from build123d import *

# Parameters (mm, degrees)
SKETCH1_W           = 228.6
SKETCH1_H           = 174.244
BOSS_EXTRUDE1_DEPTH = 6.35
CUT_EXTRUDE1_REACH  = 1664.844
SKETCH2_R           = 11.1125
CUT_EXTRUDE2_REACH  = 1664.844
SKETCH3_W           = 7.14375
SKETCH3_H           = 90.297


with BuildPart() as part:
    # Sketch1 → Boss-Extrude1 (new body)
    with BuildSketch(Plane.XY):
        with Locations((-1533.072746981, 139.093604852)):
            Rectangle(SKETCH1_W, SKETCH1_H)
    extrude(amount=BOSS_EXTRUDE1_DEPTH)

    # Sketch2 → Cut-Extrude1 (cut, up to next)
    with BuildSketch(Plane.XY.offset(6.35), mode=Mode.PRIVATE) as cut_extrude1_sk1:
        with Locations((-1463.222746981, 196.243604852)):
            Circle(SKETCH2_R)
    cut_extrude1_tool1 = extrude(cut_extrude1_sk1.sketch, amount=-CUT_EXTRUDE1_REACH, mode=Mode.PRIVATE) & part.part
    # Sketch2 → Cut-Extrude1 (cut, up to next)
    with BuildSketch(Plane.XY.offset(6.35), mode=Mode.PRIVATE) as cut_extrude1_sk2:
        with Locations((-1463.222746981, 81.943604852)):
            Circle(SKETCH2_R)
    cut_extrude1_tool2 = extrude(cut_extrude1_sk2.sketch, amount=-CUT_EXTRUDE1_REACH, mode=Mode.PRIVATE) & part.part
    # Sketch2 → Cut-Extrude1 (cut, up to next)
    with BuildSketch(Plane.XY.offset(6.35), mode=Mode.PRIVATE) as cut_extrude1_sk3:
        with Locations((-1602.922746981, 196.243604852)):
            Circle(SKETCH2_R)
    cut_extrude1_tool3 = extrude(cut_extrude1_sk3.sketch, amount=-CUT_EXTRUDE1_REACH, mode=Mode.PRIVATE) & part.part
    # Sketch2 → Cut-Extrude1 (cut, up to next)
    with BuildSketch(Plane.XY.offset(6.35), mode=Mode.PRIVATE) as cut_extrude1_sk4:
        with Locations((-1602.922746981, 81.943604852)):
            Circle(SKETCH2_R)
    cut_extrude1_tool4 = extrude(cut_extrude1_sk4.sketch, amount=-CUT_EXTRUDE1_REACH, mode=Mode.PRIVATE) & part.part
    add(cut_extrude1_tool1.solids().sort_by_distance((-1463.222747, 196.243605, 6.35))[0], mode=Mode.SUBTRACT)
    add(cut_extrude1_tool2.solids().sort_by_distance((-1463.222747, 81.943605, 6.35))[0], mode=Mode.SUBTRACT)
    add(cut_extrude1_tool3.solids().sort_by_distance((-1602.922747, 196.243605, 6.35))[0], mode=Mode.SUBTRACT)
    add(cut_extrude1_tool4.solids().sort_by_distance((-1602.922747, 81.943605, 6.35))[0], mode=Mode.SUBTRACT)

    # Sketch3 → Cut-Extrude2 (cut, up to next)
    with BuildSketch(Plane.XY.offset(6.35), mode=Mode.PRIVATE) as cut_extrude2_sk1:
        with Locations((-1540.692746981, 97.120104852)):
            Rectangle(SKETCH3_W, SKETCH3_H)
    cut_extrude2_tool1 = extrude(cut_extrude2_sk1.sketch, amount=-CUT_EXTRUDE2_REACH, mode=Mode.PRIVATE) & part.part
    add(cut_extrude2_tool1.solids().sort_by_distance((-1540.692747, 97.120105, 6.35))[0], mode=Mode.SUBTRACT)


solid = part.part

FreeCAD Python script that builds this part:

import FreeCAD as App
import Part
import Sketcher
from FreeCAD import Vector
Q = App.Units.Quantity


def add_polygon(sketch, points):
    """Adds a closed chain of lines whose ends are joined by coincident constraints."""
    first, n = sketch.GeometryCount, len(points)
    for a, b in zip(points, points[1:] + points[:1]):
        sketch.addGeometry(Part.LineSegment(App.Vector(*a, 0), App.Vector(*b, 0)), False)
    for i in range(n):
        sketch.addConstraint(Sketcher.Constraint("Coincident", first + i, 2, first + (i + 1) % n, 1))

doc = App.newDocument("Part")
body = doc.addObject("PartDesign::Body", "Body")

sketch1 = doc.addObject("Sketcher::SketchObject", "Sketch")
body.addObject(sketch1)
sketch1.AttachmentSupport = (doc.XY_Plane, [""])
sketch1.MapMode = "FlatFace"
add_polygon(sketch1, [(-1647, 226), (-1647, 52), (-1419, 52), (-1419, 226)])
sketch1.addConstraint(Sketcher.Constraint("Vertical", 0))
sketch1.addConstraint(Sketcher.Constraint("Horizontal", 1))
sketch1.addConstraint(Sketcher.Constraint("Vertical", 2))
sketch1.addConstraint(Sketcher.Constraint("Horizontal", 3))
sketch1.addConstraint(Sketcher.Constraint("DistanceX", 1, 1, 1, 2, Q("9 in")))
sketch1.addConstraint(Sketcher.Constraint("DistanceY", 0, 2, 0, 1, Q("6.86 in")))
sketch1.addConstraint(Sketcher.Constraint("DistanceX", 0, 2, -1, 1, 1647.372747))
sketch1.addConstraint(Sketcher.Constraint("DistanceY", -1, 1, 0, 2, 51.971605))
pad1 = doc.addObject("PartDesign::Pad", "Pad")
body.addObject(pad1)
pad1.Profile = sketch1
pad1.Length = Q("0.25 in")

sketch2 = doc.addObject("Sketcher::SketchObject", "Sketch001")
body.addObject(sketch2)
sketch2.AttachmentSupport = (doc.XY_Plane, [""])
sketch2.MapMode = "FlatFace"
sketch2.AttachmentOffset = App.Placement(Vector(0, 0, 0.25 * 25.4), App.Rotation())
sketch2.addGeometry(Part.Circle(Vector(-1463, 196, 0), Vector(0, 0, 1), 11), False)
sketch2.addConstraint(Sketcher.Constraint("Diameter", 0, Q("0.875 in")))
sketch2.addConstraint(Sketcher.Constraint("DistanceX", 0, 3, -1, 1, 1463.222747))
sketch2.addConstraint(Sketcher.Constraint("DistanceY", -1, 1, 0, 3, 196.243605))
pocket1 = doc.addObject("PartDesign::Pocket", "Pocket")
body.addObject(pocket1)
pocket1.Profile = sketch2
pocket1.Type = "UpToFirst"

sketch3 = doc.addObject("Sketcher::SketchObject", "Sketch002")
body.addObject(sketch3)
sketch3.AttachmentSupport = (doc.XY_Plane, [""])
sketch3.MapMode = "FlatFace"
sketch3.AttachmentOffset = App.Placement(Vector(0, 0, 0.25 * 25.4), App.Rotation())
sketch3.addGeometry(Part.Circle(Vector(-1463, 82, 0), Vector(0, 0, 1), 11), False)
sketch3.addConstraint(Sketcher.Constraint("Diameter", 0, Q("0.875 in")))
sketch3.addConstraint(Sketcher.Constraint("DistanceX", 0, 3, -1, 1, 1463.222747))
sketch3.addConstraint(Sketcher.Constraint("DistanceY", -1, 1, 0, 3, 81.943605))
pocket2 = doc.addObject("PartDesign::Pocket", "Pocket001")
body.addObject(pocket2)
pocket2.Profile = sketch3
pocket2.Type = "UpToFirst"

sketch4 = doc.addObject("Sketcher::SketchObject", "Sketch003")
body.addObject(sketch4)
sketch4.AttachmentSupport = (doc.XY_Plane, [""])
sketch4.MapMode = "FlatFace"
sketch4.AttachmentOffset = App.Placement(Vector(0, 0, 0.25 * 25.4), App.Rotation())
sketch4.addGeometry(Part.Circle(Vector(-1603, 196, 0), Vector(0, 0, 1), 11), False)
sketch4.addConstraint(Sketcher.Constraint("Diameter", 0, Q("0.875 in")))
sketch4.addConstraint(Sketcher.Constraint("DistanceX", 0, 3, -1, 1, 1602.922747))
sketch4.addConstraint(Sketcher.Constraint("DistanceY", -1, 1, 0, 3, 196.243605))
pocket3 = doc.addObject("PartDesign::Pocket", "Pocket002")
body.addObject(pocket3)
pocket3.Profile = sketch4
pocket3.Type = "UpToFirst"

sketch5 = doc.addObject("Sketcher::SketchObject", "Sketch004")
body.addObject(sketch5)
sketch5.AttachmentSupport = (doc.XY_Plane, [""])
sketch5.MapMode = "FlatFace"
sketch5.AttachmentOffset = App.Placement(Vector(0, 0, 0.25 * 25.4), App.Rotation())
sketch5.addGeometry(Part.Circle(Vector(-1603, 82, 0), Vector(0, 0, 1), 11), False)
sketch5.addConstraint(Sketcher.Constraint("Diameter", 0, Q("0.875 in")))
sketch5.addConstraint(Sketcher.Constraint("DistanceX", 0, 3, -1, 1, 1602.922747))
sketch5.addConstraint(Sketcher.Constraint("DistanceY", -1, 1, 0, 3, 81.943605))
pocket4 = doc.addObject("PartDesign::Pocket", "Pocket003")
body.addObject(pocket4)
pocket4.Profile = sketch5
pocket4.Type = "UpToFirst"

sketch6 = doc.addObject("Sketcher::SketchObject", "Sketch005")
body.addObject(sketch6)
sketch6.AttachmentSupport = (doc.XY_Plane, [""])
sketch6.MapMode = "FlatFace"
sketch6.AttachmentOffset = App.Placement(Vector(0, 0, 0.25 * 25.4), App.Rotation())
add_polygon(sketch6, [(-1544, 142), (-1544, 52), (-1537, 52), (-1537, 142)])
sketch6.addConstraint(Sketcher.Constraint("Vertical", 0))
sketch6.addConstraint(Sketcher.Constraint("Horizontal", 1))
sketch6.addConstraint(Sketcher.Constraint("Vertical", 2))
sketch6.addConstraint(Sketcher.Constraint("Horizontal", 3))
sketch6.addConstraint(Sketcher.Constraint("DistanceX", 1, 1, 1, 2, Q("0.28125 in")))
sketch6.addConstraint(Sketcher.Constraint("DistanceY", 0, 2, 0, 1, Q("3.555 in")))
sketch6.addConstraint(Sketcher.Constraint("DistanceX", 0, 2, -1, 1, 1544.264622))
sketch6.addConstraint(Sketcher.Constraint("DistanceY", -1, 1, 0, 2, 51.971605))
pocket5 = doc.addObject("PartDesign::Pocket", "Pocket004")
body.addObject(pocket5)
pocket5.Profile = sketch6
pocket5.Type = "UpToFirst"

doc.recompute()
